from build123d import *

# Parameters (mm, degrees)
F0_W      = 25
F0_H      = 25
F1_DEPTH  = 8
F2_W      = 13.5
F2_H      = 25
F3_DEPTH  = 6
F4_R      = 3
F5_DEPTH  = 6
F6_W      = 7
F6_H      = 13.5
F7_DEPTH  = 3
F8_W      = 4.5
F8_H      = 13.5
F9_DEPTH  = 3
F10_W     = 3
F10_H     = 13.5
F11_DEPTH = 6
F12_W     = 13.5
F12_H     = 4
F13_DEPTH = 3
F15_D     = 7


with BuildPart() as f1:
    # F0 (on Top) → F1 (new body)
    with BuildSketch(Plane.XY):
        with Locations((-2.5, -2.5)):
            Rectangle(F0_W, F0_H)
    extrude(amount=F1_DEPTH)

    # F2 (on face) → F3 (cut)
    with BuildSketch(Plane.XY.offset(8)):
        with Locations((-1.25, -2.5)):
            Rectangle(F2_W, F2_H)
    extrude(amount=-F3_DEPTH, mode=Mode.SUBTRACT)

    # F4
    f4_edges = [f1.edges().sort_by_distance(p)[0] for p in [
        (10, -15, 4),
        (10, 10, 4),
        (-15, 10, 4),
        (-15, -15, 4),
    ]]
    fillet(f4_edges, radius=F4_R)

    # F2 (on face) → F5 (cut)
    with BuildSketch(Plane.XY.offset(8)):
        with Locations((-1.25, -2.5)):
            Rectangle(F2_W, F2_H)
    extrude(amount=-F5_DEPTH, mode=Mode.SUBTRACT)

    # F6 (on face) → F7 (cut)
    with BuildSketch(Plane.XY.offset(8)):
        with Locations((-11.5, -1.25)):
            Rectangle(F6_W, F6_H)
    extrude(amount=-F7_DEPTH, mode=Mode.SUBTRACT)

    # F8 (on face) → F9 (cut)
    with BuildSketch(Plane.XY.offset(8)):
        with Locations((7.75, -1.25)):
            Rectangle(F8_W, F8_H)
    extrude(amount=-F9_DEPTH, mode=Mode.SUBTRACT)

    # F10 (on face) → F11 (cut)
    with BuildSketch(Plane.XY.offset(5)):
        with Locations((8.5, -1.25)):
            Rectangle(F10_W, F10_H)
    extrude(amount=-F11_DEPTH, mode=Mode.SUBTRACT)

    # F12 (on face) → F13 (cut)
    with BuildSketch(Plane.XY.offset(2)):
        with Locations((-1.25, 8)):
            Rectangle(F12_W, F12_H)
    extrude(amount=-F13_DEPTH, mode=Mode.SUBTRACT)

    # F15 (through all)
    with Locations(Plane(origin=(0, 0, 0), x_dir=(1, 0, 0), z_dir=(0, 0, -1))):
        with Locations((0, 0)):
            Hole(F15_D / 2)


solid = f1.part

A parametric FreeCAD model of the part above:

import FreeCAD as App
import Part
import Sketcher

V = App.Vector
Q = App.Units.Quantity


def edges_at(feature, points):
    """Names of the edges that pass closest to the given points."""
    edges = feature.Shape.Edges
    near = lambda p: min(range(len(edges)), key=lambda i: edges[i].distToShape(Part.Vertex(*p))[0])
    return sorted({f"Edge{near(p) + 1}" for p in points})

doc = App.newDocument("Part")
body = doc.addObject("PartDesign::Body", "Body")

sketch1 = body.newObject("Sketcher::SketchObject", "Sketch")
sketch1.AttachmentSupport = (doc.getObject("XY_Plane"), [""])
sketch1.MapMode = "FlatFace"
sketch1.addGeometry([
    Part.LineSegment(V(-15, 10, 0), V(-15, -15, 0)),
    Part.LineSegment(V(-15, -15, 0), V(10, -15, 0)),
    Part.LineSegment(V(10, -15, 0), V(10, 10, 0)),
    Part.LineSegment(V(10, 10, 0), V(-15, 10, 0)),
], False)
sketch1.addConstraint([
    Sketcher.Constraint("Coincident", 0, 2, 1, 1),
    Sketcher.Constraint("Coincident", 1, 2, 2, 1),
    Sketcher.Constraint("Coincident", 2, 2, 3, 1),
    Sketcher.Constraint("Coincident", 3, 2, 0, 1),
    Sketcher.Constraint("Vertical", 0),
    Sketcher.Constraint("Horizontal", 1),
    Sketcher.Constraint("Vertical", 2),
    Sketcher.Constraint("Horizontal", 3),
    Sketcher.Constraint("Equal", 3, 0),
    Sketcher.Constraint("DistanceX", 1, 1, 1, 2, Q("25 mm")),
    Sketcher.Constraint("DistanceX", 0, 2, -1, 1, Q("15 mm")),
    Sketcher.Constraint("DistanceY", 0, 2, -1, 1, Q("15 mm")),
])
pad1 = body.newObject("PartDesign::Pad", "Pad")
pad1.Profile = sketch1
pad1.Length = 8

sketch2 = body.newObject("Sketcher::SketchObject", "Sketch001")
sketch2.AttachmentSupport = (doc.getObject("XY_Plane"), [""])
sketch2.MapMode = "FlatFace"
sketch2.AttachmentOffset = App.Placement(V(0, 0, 8), App.Rotation())
sketch2.addGeometry([
    Part.LineSegment(V(-8, 10, 0), V(-8, -15, 0)),
    Part.LineSegment(V(-8, -15, 0), V(6, -15, 0)),
    Part.LineSegment(V(6, -15, 0), V(6, 10, 0)),
    Part.LineSegment(V(6, 10, 0), V(-8, 10, 0)),
], False)
sketch2.addConstraint([
    Sketcher.Constraint("Coincident", 0, 2, 1, 1),
    Sketcher.Constraint("Coincident", 1, 2, 2, 1),
    Sketcher.Constraint("Coincident", 2, 2, 3, 1),
    Sketcher.Constraint("Coincident", 3, 2, 0, 1),
    Sketcher.Constraint("Vertical", 0),
    Sketcher.Constraint("Horizontal", 1),
    Sketcher.Constraint("Vertical", 2),
    Sketcher.Constraint("Horizontal", 3),
    Sketcher.Constraint("DistanceY", 0, 2, 0, 1, Q("25 mm")),
    Sketcher.Constraint("DistanceX", 1, 1, 1, 2, Q("13.5 mm")),
    Sketcher.Constraint("DistanceX", 0, 2, -1, 1, Q("8 mm")),
    Sketcher.Constraint("DistanceY", 0, 2, -1, 1, Q("15 mm")),
])
pocket1 = body.newObject("PartDesign::Pocket", "Pocket")
pocket1.Profile = sketch2
pocket1.Length = 6
doc.recompute()

fillet = body.newObject("PartDesign::Fillet", "Fillet")
fillet.Base = (pocket1, edges_at(pocket1, [
    (10, -15, 4),
    (10, 10, 4),
    (-15, 10, 4),
    (-15, -15, 4),
]))
fillet.Radius = 3

sketch3 = body.newObject("Sketcher::SketchObject", "Sketch002")
sketch3.AttachmentSupport = (doc.getObject("XY_Plane"), [""])
sketch3.MapMode = "FlatFace"
sketch3.AttachmentOffset = App.Placement(V(0, 0, 8), App.Rotation())
sketch3.addGeometry([
    Part.LineSegment(V(-8, 10, 0), V(-8, -15, 0)),
    Part.LineSegment(V(-8, -15, 0), V(6, -15, 0)),
    Part.LineSegment(V(6, -15, 0), V(6, 10, 0)),
    Part.LineSegment(V(6, 10, 0), V(-8, 10, 0)),
], False)
sketch3.addConstraint([
    Sketcher.Constraint("Coincident", 0, 2, 1, 1),
    Sketcher.Constraint("Coincident", 1, 2, 2, 1),
    Sketcher.Constraint("Coincident", 2, 2, 3, 1),
    Sketcher.Constraint("Coincident", 3, 2, 0, 1),
    Sketcher.Constraint("Vertical", 0),
    Sketcher.Constraint("Horizontal", 1),
    Sketcher.Constraint("Vertical", 2),
    Sketcher.Constraint("Horizontal", 3),
    Sketcher.Constraint("DistanceY", 0, 2, 0, 1, Q("25 mm")),
    Sketcher.Constraint("DistanceX", 1, 1, 1, 2, Q("13.5 mm")),
    Sketcher.Constraint("DistanceX", 0, 2, -1, 1, Q("8 mm")),
    Sketcher.Constraint("DistanceY", 0, 2, -1, 1, Q("15 mm")),
])
pocket2 = body.newObject("PartDesign::Pocket", "Pocket001")
pocket2.Profile = sketch3
pocket2.Length = 6

sketch4 = body.newObject("Sketcher::SketchObject", "Sketch003")
sketch4.AttachmentSupport = (doc.getObject("XY_Plane"), [""])
sketch4.MapMode = "FlatFace"
sketch4.AttachmentOffset = App.Placement(V(0, 0, 8), App.Rotation())
sketch4.addGeometry([
    Part.LineSegment(V(-15, 6, 0), V(-15, -8, 0)),
    Part.LineSegment(V(-15, -8, 0), V(-8, -8, 0)),
    Part.LineSegment(V(-8, -8, 0), V(-8, 6, 0)),
    Part.LineSegment(V(-8, 6, 0), V(-15, 6, 0)),
], False)
sketch4.addConstraint([
    Sketcher.Constraint("Coincident", 0, 2, 1, 1),
    Sketcher.Constraint("Coincident", 1, 2, 2, 1),
    Sketcher.Constraint("Coincident", 2, 2, 3, 1),
    Sketcher.Constraint("Coincident", 3, 2, 0, 1),
    Sketcher.Constraint("Vertical", 0),
    Sketcher.Constraint("Horizontal", 1),
    Sketcher.Constraint("Vertical", 2),
    Sketcher.Constraint("Horizontal", 3),
    Sketcher.Constraint("DistanceX", 1, 1, 1, 2, Q("7 mm")),
    Sketcher.Constraint("DistanceY", 0, 2, 0, 1, Q("13.5 mm")),
    Sketcher.Constraint("DistanceX", 0, 2, -1, 1, Q("15 mm")),
    Sketcher.Constraint("DistanceY", 0, 2, -1, 1, Q("8 mm")),
])
pocket3 = body.newObject("PartDesign::Pocket", "Pocket002")
pocket3.Profile = sketch4
pocket3.Length = 3

sketch5 = body.newObject("Sketcher::SketchObject", "Sketch004")
sketch5.AttachmentSupport = (doc.getObject("XY_Plane"), [""])
sketch5.MapMode = "FlatFace"
sketch5.AttachmentOffset = App.Placement(V(0, 0, 8), App.Rotation())
sketch5.addGeometry([
    Part.LineSegment(V(5.5, 5.5, 0), V(5.5, -8, 0)),
    Part.LineSegment(V(5.5, -8, 0), V(10, -8, 0)),
    Part.LineSegment(V(10, -8, 0), V(10, 5.5, 0)),
    Part.LineSegment(V(10, 5.5, 0), V(5.5, 5.5, 0)),
], False)
sketch5.addConstraint([
    Sketcher.Constraint("Coincident", 0, 2, 1, 1),
    Sketcher.Constraint("Coincident", 1, 2, 2, 1),
    Sketcher.Constraint("Coincident", 2, 2, 3, 1),
    Sketcher.Constraint("Coincident", 3, 2, 0, 1),
    Sketcher.Constraint("Vertical", 0),
    Sketcher.Constraint("Horizontal", 1),
    Sketcher.Constraint("Vertical", 2),
    Sketcher.Constraint("Horizontal", 3),
    Sketcher.Constraint("DistanceX", 1, 1, 1, 2, Q("4.5 mm")),
    Sketcher.Constraint("DistanceY", 0, 2, 0, 1, Q("13.5 mm")),
    Sketcher.Constraint("DistanceY", 0, 2, -1, 1, Q("8 mm")),
    Sketcher.Constraint("DistanceX", -1, 1, 1, 2, Q("10 mm")),
])
pocket4 = body.newObject("PartDesign::Pocket", "Pocket003")
pocket4.Profile = sketch5
pocket4.Length = 3

sketch6 = body.newObject("Sketcher::SketchObject", "Sketch005")
sketch6.AttachmentSupport = (doc.getObject("XY_Plane"), [""])
sketch6.MapMode = "FlatFace"
sketch6.AttachmentOffset = App.Placement(V(0, 0, 5), App.Rotation())
sketch6.addGeometry([
    Part.LineSegment(V(7, 5.5, 0), V(7, -8, 0)),
    Part.LineSegment(V(7, -8, 0), V(10, -8, 0)),
    Part.LineSegment(V(10, -8, 0), V(10, 5.5, 0)),
    Part.LineSegment(V(10, 5.5, 0), V(7, 5.5, 0)),
], False)
sketch6.addConstraint([
    Sketcher.Constraint("Coincident", 0, 2, 1, 1),
    Sketcher.Constraint("Coincident", 1, 2, 2, 1),
    Sketcher.Constraint("Coincident", 2, 2, 3, 1),
    Sketcher.Constraint("Coincident", 3, 2, 0, 1),
    Sketcher.Constraint("Vertical", 0),
    Sketcher.Constraint("Horizontal", 1),
    Sketcher.Constraint("Vertical", 2),
    Sketcher.Constraint("Horizontal", 3),
    Sketcher.Constraint("DistanceX", 1, 1, 1, 2, Q("3 mm")),
    Sketcher.Constraint("DistanceY", 0, 2, 0, 1, Q("13.5 mm")),
    Sketcher.Constraint("DistanceX", -1, 1, 0, 2, Q("7 mm")),
    Sketcher.Constraint("DistanceY", 0, 2, -1, 1, Q("8 mm")),
])
pocket5 = body.newObject("PartDesign::Pocket", "Pocket004")
pocket5.Profile = sketch6
pocket5.Length = 6

sketch7 = body.newObject("Sketcher::SketchObject", "Sketch006")
sketch7.AttachmentSupport = (doc.getObject("XY_Plane"), [""])
sketch7.MapMode = "FlatFace"
sketch7.AttachmentOffset = App.Placement(V(0, 0, 2), App.Rotation())
sketch7.addGeometry([
    Part.LineSegment(V(-8, 10, 0), V(-8, 6, 0)),
    Part.LineSegment(V(-8, 6, 0), V(5.5, 6, 0)),
    Part.LineSegment(V(5.5, 6, 0), V(5.5, 10, 0)),
    Part.LineSegment(V(5.5, 10, 0), V(-8, 10, 0)),
], False)
sketch7.addConstraint([
    Sketcher.Constraint("Coincident", 0, 2, 1, 1),
    Sketcher.Constraint("Coincident", 1, 2, 2, 1),
    Sketcher.Constraint("Coincident", 2, 2, 3, 1),
    Sketcher.Constraint("Coincident", 3, 2, 0, 1),
    Sketcher.Constraint("Vertical", 0),
    Sketcher.Constraint("Horizontal", 1),
    Sketcher.Constraint("Vertical", 2),
    Sketcher.Constraint("Horizontal", 3),
    Sketcher.Constraint("DistanceY", 0, 2, 0, 1, Q("4 mm")),
    Sketcher.Constraint("DistanceX", 1, 1, 1, 2, Q("13.5 mm")),
    Sketcher.Constraint("DistanceX", 0, 2, -1, 1, Q("8 mm")),
    Sketcher.Constraint("DistanceY", -1, 1, 0, 2, Q("6 mm")),
])
pocket6 = body.newObject("PartDesign::Pocket", "Pocket005")
pocket6.Profile = sketch7
pocket6.Length = 3

sketch8 = body.newObject("Sketcher::SketchObject", "Sketch007")
sketch8.AttachmentSupport = (doc.getObject("XY_Plane"), [""])
sketch8.MapMode = "FlatFace"
sketch8.addGeometry(Part.Circle(V(0, 0, 0), V(0, 0, 1), 3.5), False)
sketch8.addConstraint([
    Sketcher.Constraint("Coincident", 0, 3, -1, 1),
    Sketcher.Constraint("Diameter", 0, Q("7 mm")),
])
doc.recompute()
hole = body.newObject("PartDesign::Hole", "Hole")
hole.Profile = sketch8
hole.ThreadType = "None"
hole.Diameter = 7
hole.DepthType = "ThroughAll"
hole.Reversed = True

doc.recompute()
